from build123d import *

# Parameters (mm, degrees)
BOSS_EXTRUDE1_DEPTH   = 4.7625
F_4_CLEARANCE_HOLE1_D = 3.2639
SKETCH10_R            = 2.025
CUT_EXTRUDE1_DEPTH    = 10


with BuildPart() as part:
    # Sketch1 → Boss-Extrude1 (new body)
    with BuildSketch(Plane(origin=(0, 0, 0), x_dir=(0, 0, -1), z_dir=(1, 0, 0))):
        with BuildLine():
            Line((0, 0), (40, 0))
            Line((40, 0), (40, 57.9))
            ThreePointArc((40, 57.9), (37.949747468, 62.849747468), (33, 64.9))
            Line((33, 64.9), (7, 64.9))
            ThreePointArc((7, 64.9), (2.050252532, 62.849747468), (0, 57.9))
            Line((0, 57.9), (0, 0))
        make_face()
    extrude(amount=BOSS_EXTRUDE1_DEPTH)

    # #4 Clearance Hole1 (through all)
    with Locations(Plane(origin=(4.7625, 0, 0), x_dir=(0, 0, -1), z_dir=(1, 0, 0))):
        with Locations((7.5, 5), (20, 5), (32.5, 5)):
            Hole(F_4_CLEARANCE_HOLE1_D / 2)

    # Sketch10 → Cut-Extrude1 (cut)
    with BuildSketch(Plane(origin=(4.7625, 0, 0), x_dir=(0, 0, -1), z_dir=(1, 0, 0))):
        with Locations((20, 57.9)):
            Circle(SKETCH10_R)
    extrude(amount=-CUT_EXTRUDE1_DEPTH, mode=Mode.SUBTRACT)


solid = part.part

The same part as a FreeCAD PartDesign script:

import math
import FreeCAD as App
import Part
import Sketcher

V = App.Vector
Q = App.Units.Quantity

doc = App.newDocument("Part")
body = doc.addObject("PartDesign::Body", "Body")

# Sketch on YZ plane
sketch1 = body.newObject("Sketcher::SketchObject", "Sketch")
sketch1.AttachmentSupport = (doc.getObject("YZ_Plane"), [""])
sketch1.MapMode = "FlatFace"
sketch1.addGeometry([
    Part.LineSegment(V(0, 0, 0), V(0, -40, 0)),  # 0
    Part.LineSegment(V(0, -40, 0), V(58, -40, 0)),  # 1
    Part.ArcOfCircle(Part.Circle(V(58, -33, 0), V(0, 0, 1), 7), math.radians(-90), math.radians(0)),  # 2
    Part.LineSegment(V(65, -33, 0), V(65, -7, 0)),  # 3
    Part.ArcOfCircle(Part.Circle(V(58, -7, 0), V(0, 0, 1), 7), math.radians(0), math.radians(90)),  # 4
    Part.LineSegment(V(58, 0, 0), V(0, 0, 0)),  # 5
], False)
sketch1.addConstraint([
    Sketcher.Constraint("Coincident", 0, 2, 1, 1),
    Sketcher.Constraint("Tangent", 1, 2, 2, 1),
    Sketcher.Constraint("Tangent", 2, 2, 3, 1),
    Sketcher.Constraint("Tangent", 3, 2, 4, 1),
    Sketcher.Constraint("Tangent", 4, 2, 5, 1),
    Sketcher.Constraint("Coincident", 5, 2, 0, 1),
    Sketcher.Constraint("Vertical", 0),
    Sketcher.Constraint("Horizontal", 1),
    Sketcher.Constraint("Vertical", 3),
    Sketcher.Constraint("Horizontal", 5),
    Sketcher.Constraint("Coincident", 5, 2, -1, 1),
    Sketcher.Constraint("Equal", 2, 4),
    Sketcher.Constraint("Radius", 2, Q("7 mm")),
    Sketcher.Constraint("DistanceY", 0, 2, 0, 1, Q("40 mm")),
    Sketcher.Constraint("DistanceX", 1, 1, 1, 2, Q("57.9 mm")),
])
pad1 = body.newObject("PartDesign::Pad", "Pad")
pad1.Profile = sketch1
pad1.Length = 4.7625

# Sketch on YZ plane
sketch2 = body.newObject("Sketcher::SketchObject", "Sketch001")
sketch2.AttachmentSupport = (doc.getObject("YZ_Plane"), [""])
sketch2.MapMode = "FlatFace"
sketch2.AttachmentOffset = App.Placement(V(0, 0, 4.7625), App.Rotation())
sketch2.addGeometry([
    Part.Circle(V(5, -7.5, 0), V(0, 0, 1), 1.6),
    Part.Circle(V(5, -20, 0), V(0, 0, 1), 1.6),
    Part.Circle(V(5, -32.5, 0), V(0, 0, 1), 1.6),
], False)
sketch2.addConstraint([
    Sketcher.Constraint("Equal", 0, 1),
    Sketcher.Constraint("Equal", 1, 2),
    Sketcher.Constraint("Vertical", 0, 3, 1, 3),
    Sketcher.Constraint("Vertical", 1, 3, 2, 3),
    Sketcher.Constraint("DistanceX", -1, 1, 0, 3, Q("5 mm")),
    Sketcher.Constraint("DistanceY", 1, 3, -1, 1, Q("20 mm")),
    Sketcher.Constraint("DistanceY", 2, 3, 0, 3, Q("25 mm")),
    Sketcher.Constraint("Diameter", 0, Q("3.2639 mm")),
    Sketcher.Constraint("DistanceY", 0, 3, -1, 1, Q("7.5 mm")),
])
doc.recompute()
hole = body.newObject("PartDesign::Hole", "Hole")
hole.Profile = sketch2
hole.ThreadType = "None"
hole.Diameter = 3.2639
hole.DepthType = "ThroughAll"

# Sketch on YZ plane
sketch3 = body.newObject("Sketcher::SketchObject", "Sketch002")
sketch3.AttachmentSupport = (doc.getObject("YZ_Plane"), [""])
sketch3.MapMode = "FlatFace"
sketch3.AttachmentOffset = App.Placement(V(0, 0, 4.7625), App.Rotation())
sketch3.addGeometry(Part.Circle(V(57.9, -20, 0), V(0, 0, 1), 2), False)
sketch3.addConstraint([
    Sketcher.Constraint("Diameter", 0, Q("4.05 mm")),
    Sketcher.Constraint("DistanceY", 0, 3, -1, 1, Q("20 mm")),
    Sketcher.Constraint("DistanceX", -1, 1, 0, 3, Q("57.9 mm")),
])
pocket1 = body.newObject("PartDesign::Pocket", "Pocket")
pocket1.Profile = sketch3
pocket1.Length = 10

doc.recompute()
